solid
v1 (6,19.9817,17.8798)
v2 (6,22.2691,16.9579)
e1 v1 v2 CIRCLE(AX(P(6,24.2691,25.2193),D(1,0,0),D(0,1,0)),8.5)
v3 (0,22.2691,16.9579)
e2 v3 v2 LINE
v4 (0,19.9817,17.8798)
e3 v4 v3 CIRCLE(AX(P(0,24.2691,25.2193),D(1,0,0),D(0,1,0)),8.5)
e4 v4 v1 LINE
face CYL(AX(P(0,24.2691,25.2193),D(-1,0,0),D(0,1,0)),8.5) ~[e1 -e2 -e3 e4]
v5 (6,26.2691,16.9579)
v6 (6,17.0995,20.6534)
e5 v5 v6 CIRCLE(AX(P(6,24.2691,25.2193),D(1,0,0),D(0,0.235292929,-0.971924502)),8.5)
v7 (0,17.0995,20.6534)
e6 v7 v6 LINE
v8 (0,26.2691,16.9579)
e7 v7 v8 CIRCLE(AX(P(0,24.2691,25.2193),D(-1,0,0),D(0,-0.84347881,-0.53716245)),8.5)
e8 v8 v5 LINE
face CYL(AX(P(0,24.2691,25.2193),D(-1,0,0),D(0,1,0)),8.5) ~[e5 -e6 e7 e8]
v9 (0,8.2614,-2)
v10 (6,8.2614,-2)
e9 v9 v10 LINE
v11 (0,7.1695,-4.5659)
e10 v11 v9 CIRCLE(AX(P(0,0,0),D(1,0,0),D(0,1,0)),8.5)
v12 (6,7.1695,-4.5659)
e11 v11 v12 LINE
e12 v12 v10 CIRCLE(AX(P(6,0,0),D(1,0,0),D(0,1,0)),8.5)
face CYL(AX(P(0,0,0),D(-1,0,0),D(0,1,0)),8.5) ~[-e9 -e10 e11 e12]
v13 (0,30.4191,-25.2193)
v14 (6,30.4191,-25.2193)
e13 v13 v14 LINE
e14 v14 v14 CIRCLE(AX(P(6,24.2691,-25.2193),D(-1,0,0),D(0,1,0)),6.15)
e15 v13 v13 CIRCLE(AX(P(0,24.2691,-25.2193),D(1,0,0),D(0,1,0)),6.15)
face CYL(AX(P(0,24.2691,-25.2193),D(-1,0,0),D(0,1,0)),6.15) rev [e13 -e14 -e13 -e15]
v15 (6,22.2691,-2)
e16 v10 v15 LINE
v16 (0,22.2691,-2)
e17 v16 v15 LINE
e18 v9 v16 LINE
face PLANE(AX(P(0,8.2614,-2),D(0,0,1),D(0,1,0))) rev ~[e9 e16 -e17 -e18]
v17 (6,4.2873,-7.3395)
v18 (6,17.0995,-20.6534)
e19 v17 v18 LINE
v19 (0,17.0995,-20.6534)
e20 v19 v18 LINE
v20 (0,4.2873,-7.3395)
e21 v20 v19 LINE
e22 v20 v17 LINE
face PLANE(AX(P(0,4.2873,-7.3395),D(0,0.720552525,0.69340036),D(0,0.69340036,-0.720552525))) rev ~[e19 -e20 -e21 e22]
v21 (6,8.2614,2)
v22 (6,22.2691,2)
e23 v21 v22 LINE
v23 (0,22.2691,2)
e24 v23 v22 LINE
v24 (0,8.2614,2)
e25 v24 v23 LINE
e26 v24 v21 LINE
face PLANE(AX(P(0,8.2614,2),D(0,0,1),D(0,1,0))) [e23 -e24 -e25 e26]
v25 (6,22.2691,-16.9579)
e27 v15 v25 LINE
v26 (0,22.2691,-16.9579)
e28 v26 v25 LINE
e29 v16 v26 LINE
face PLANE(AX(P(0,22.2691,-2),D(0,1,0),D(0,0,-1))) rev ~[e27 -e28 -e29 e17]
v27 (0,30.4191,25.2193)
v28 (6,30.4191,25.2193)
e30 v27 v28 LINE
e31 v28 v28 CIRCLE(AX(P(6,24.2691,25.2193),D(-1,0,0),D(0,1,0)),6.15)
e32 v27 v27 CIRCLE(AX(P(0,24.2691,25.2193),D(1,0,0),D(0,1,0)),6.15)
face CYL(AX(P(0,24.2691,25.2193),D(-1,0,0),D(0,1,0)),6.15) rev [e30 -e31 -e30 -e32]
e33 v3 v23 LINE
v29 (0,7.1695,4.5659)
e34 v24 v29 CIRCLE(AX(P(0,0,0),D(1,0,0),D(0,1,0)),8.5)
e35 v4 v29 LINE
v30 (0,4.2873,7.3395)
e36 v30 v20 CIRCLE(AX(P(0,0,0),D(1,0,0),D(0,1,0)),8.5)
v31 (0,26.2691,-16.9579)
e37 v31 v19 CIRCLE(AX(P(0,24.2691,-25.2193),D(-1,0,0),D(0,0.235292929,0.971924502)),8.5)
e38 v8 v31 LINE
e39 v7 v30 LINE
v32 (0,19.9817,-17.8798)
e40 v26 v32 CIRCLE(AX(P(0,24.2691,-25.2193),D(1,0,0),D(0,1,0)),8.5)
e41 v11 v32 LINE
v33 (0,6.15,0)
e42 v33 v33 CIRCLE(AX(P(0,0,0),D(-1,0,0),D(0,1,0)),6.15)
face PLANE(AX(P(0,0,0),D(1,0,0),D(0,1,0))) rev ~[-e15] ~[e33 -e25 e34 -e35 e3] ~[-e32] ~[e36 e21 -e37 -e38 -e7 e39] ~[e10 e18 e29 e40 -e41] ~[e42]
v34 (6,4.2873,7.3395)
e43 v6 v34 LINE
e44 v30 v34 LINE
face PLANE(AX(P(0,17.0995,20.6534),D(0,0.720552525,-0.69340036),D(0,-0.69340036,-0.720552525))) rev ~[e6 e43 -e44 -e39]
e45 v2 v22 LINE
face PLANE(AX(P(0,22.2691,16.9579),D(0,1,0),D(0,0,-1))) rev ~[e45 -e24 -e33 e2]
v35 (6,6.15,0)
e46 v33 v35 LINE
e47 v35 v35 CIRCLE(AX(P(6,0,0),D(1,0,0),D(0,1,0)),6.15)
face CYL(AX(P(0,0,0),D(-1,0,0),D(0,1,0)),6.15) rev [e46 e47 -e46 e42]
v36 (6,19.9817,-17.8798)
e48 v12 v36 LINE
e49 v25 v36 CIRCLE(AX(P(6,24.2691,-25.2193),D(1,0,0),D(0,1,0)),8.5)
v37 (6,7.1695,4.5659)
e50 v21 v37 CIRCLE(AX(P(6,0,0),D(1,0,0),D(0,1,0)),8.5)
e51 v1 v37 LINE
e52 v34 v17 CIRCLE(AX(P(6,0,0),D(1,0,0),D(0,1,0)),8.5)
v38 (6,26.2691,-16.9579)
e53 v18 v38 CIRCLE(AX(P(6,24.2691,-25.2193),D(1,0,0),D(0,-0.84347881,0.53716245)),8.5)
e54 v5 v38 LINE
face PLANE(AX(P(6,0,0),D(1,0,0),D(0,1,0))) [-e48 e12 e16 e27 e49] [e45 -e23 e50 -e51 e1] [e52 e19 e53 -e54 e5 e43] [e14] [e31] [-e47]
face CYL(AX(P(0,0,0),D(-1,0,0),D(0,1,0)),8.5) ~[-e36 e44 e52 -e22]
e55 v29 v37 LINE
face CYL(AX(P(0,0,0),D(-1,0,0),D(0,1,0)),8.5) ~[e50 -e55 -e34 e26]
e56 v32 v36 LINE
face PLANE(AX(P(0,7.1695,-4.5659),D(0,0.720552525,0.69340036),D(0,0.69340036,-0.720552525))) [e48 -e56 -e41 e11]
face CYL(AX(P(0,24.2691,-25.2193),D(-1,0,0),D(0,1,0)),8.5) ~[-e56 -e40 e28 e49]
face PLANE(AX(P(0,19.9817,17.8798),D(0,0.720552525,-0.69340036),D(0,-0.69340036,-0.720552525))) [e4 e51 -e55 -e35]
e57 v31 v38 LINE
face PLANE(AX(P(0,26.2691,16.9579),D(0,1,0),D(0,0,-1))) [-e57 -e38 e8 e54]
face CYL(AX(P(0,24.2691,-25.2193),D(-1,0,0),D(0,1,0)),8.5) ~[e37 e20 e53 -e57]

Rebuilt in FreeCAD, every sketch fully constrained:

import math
import FreeCAD as App
import Part
import Sketcher

V = App.Vector
Q = App.Units.Quantity

doc = App.newDocument("Part")
body = doc.addObject("PartDesign::Body", "Body")

sketch1 = doc.addObject("Sketcher::SketchObject", "Sketch")
body.addObject(sketch1)
sketch1.AttachmentSupport = (doc.YZ_Plane, [""])
sketch1.MapMode = "FlatFace"
sketch1.addGeometry([
    Part.ArcOfCircle(Part.Circle(V(0, 0, 0), V(0, 0, 1), 8.5), math.radians(59.709065), math.radians(300.290935)),
    Part.LineSegment(V(4.2873, -7.3395, 0), V(17.0995, -20.6534, 0)),
    Part.ArcOfCircle(Part.Circle(V(24.2691, -25.2193, 0), V(0, 0, 1), 8.5), math.radians(147.509317), math.radians(436.391109)),
    Part.LineSegment(V(26.2691, -16.9579, 0), V(26.2691, 16.9579, 0)),
    Part.ArcOfCircle(Part.Circle(V(24.2691, 25.2193, 0), V(0, 0, 1), 8.5), math.radians(-76.391109), math.radians(212.490683)),
    Part.LineSegment(V(17.0995, 20.6534, 0), V(4.2873, 7.3395, 0)),
    Part.Circle(V(0, 0, 0), V(0, 0, 1), 6.15),
    Part.ArcOfCircle(Part.Circle(V(0, 0, 0), V(0, 0, 1), 8.5), math.radians(-32.491045), math.radians(-13.608891)),
    Part.LineSegment(V(8.2614, -2, 0), V(22.2691, -2, 0)),
    Part.LineSegment(V(22.2691, -2, 0), V(22.2691, -16.9579, 0)),
    Part.ArcOfCircle(Part.Circle(V(24.2691, -25.2193, 0), V(0, 0, 1), 8.5), math.radians(103.608891), math.radians(120.291517)),
    Part.LineSegment(V(19.9817, -17.8798, 0), V(7.1695, -4.5659, 0)),
    Part.ArcOfCircle(Part.Circle(V(0, 0, 0), V(0, 0, 1), 8.5), math.radians(13.608891), math.radians(32.491045)),
    Part.LineSegment(V(7.1695, 4.5659, 0), V(19.9817, 17.8798, 0)),
    Part.ArcOfCircle(Part.Circle(V(24.2691, 25.2193, 0), V(0, 0, 1), 8.5), math.radians(-120.291517), math.radians(-103.608891)),
    Part.LineSegment(V(22.2691, 16.9579, 0), V(22.2691, 2, 0)),
    Part.LineSegment(V(22.2691, 2, 0), V(8.2614, 2, 0)),
    Part.Circle(V(24.2691, -25.2193, 0), V(0, 0, 1), 6.15),
    Part.Circle(V(24.2691, 25.2193, 0), V(0, 0, 1), 6.15),
], False)
sketch1.addConstraint([
    Sketcher.Constraint("Coincident", 0, 2, 1, 1),
    Sketcher.Constraint("Coincident", 1, 2, 2, 1),
    Sketcher.Constraint("Coincident", 2, 2, 3, 1),
    Sketcher.Constraint("Coincident", 3, 2, 4, 1),
    Sketcher.Constraint("Coincident", 4, 2, 5, 1),
    Sketcher.Constraint("Coincident", 5, 2, 0, 1),
    Sketcher.Constraint("Coincident", 7, 2, 8, 1),
    Sketcher.Constraint("Coincident", 8, 2, 9, 1),
    Sketcher.Constraint("Coincident", 9, 2, 10, 1),
    Sketcher.Constraint("Coincident", 10, 2, 11, 1),
    Sketcher.Constraint("Coincident", 11, 2, 7, 1),
    Sketcher.Constraint("Coincident", 12, 2, 13, 1),
    Sketcher.Constraint("Coincident", 13, 2, 14, 1),
    Sketcher.Constraint("Coincident", 14, 2, 15, 1),
    Sketcher.Constraint("Coincident", 15, 2, 16, 1),
    Sketcher.Constraint("Coincident", 16, 2, 12, 1),
    Sketcher.Constraint("Vertical", 3),
    Sketcher.Constraint("Horizontal", 8),
    Sketcher.Constraint("Vertical", 9),
    Sketcher.Constraint("Vertical", 15),
    Sketcher.Constraint("Horizontal", 16),
    Sketcher.Constraint("Coincident", 0, 3, -1, 1),
    Sketcher.Constraint("Coincident", 6, 3, -1, 1),
    Sketcher.Constraint("Coincident", 7, 3, -1, 1),
    Sketcher.Constraint("Coincident", 12, 3, -1, 1),
    Sketcher.Constraint("Coincident", 10, 3, 2, 3),
    Sketcher.Constraint("Coincident", 14, 3, 4, 3),
    Sketcher.Constraint("Coincident", 17, 3, 2, 3),
    Sketcher.Constraint("Coincident", 18, 3, 4, 3),
    Sketcher.Constraint("Equal", 0, 2),
    Sketcher.Constraint("Equal", 2, 4),
    Sketcher.Constraint("Equal", 4, 7),
    Sketcher.Constraint("Equal", 7, 10),
    Sketcher.Constraint("Equal", 10, 12),
    Sketcher.Constraint("Equal", 12, 14),
    Sketcher.Constraint("Equal", 6, 17),
    Sketcher.Constraint("Equal", 17, 18),
    Sketcher.Constraint("Symmetric", 2, 3, 4, 3, -1),
    Sketcher.Constraint("Symmetric", 8, 2, 15, 2, -1),
    Sketcher.Constraint("Parallel", 1, 11),
    Sketcher.Constraint("Parallel", 5, 13),
    Sketcher.Constraint("Horizontal", 2, 2, 9, 2),
    Sketcher.Constraint("Vertical", 1, 2, 4, 2),
    Sketcher.Constraint("Vertical", 0, 2, 5, 2),
    Sketcher.Constraint("Vertical", 11, 2, 12, 2),
    Sketcher.Constraint("Equal", 5, 11),
    Sketcher.Constraint("Diameter", 6, Q("12.3 mm")),
    Sketcher.Constraint("Radius", 0, Q("8.5 mm")),
    Sketcher.Constraint("DistanceY", 7, 2, -1, 1, Q("2 mm")),
    Sketcher.Constraint("DistanceX", 2, 3, 2, 2, Q("2 mm")),
    Sketcher.Constraint("Angle", 1, Q("-46.1 deg")),
    Sketcher.Constraint("DistanceY", 9, 2, 9, 1, Q("14.958 mm")),
    Sketcher.Constraint("DistanceX", 8, 1, 8, 2, Q("14.0077 mm")),
    Sketcher.Constraint("DistanceY", 11, 2, -1, 1, Q("4.566 mm")),
])
pad1 = doc.addObject("PartDesign::Pad", "Pad")
body.addObject(pad1)
pad1.Profile = sketch1
pad1.Length = 6

doc.recompute()
